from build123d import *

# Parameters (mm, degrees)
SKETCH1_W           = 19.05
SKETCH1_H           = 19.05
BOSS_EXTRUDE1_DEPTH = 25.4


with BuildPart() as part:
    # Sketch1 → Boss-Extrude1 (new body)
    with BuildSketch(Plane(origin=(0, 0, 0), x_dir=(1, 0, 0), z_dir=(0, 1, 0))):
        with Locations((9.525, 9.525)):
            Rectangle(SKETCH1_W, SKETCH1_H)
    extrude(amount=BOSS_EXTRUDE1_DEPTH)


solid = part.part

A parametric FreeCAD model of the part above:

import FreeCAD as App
import Part
import Sketcher
Q = App.Units.Quantity

doc = App.newDocument("Part")
body = doc.addObject("PartDesign::Body", "Body")

# Sketch on XZ plane
sketch1 = doc.addObject("Sketcher::SketchObject", "Sketch")
body.addObject(sketch1)
sketch1.AttachmentSupport = (doc.XZ_Plane, [""])
sketch1.MapMode = "FlatFace"
sketch1.addGeometry([
    Part.LineSegment(App.Vector(0, -19.05, 0), App.Vector(0, 0, 0)),
    Part.LineSegment(App.Vector(0, 0, 0), App.Vector(19.05, 0, 0)),
    Part.LineSegment(App.Vector(19.05, 0, 0), App.Vector(19.05, -19.05, 0)),
    Part.LineSegment(App.Vector(19.05, -19.05, 0), App.Vector(0, -19.05, 0)),
], False)
sketch1.addConstraint([
    Sketcher.Constraint("Coincident", 0, 2, 1, 1),
    Sketcher.Constraint("Coincident", 1, 2, 2, 1),
    Sketcher.Constraint("Coincident", 2, 2, 3, 1),
    Sketcher.Constraint("Coincident", 3, 2, 0, 1),
    Sketcher.Constraint("Vertical", 0),
    Sketcher.Constraint("Horizontal", 1),
    Sketcher.Constraint("Vertical", 2),
    Sketcher.Constraint("Horizontal", 3),
    Sketcher.Constraint("Coincident", 0, 2, -1, 1),
    Sketcher.Constraint("Equal", 3, 0),
    Sketcher.Constraint("DistanceX", 1, 1, 1, 2, Q("0.75 in")),
])
pad1 = doc.addObject("PartDesign::Pad", "Pad")
body.addObject(pad1)
pad1.Profile = sketch1
pad1.Length = Q("1 in")
pad1.Reversed = True

doc.recompute()
